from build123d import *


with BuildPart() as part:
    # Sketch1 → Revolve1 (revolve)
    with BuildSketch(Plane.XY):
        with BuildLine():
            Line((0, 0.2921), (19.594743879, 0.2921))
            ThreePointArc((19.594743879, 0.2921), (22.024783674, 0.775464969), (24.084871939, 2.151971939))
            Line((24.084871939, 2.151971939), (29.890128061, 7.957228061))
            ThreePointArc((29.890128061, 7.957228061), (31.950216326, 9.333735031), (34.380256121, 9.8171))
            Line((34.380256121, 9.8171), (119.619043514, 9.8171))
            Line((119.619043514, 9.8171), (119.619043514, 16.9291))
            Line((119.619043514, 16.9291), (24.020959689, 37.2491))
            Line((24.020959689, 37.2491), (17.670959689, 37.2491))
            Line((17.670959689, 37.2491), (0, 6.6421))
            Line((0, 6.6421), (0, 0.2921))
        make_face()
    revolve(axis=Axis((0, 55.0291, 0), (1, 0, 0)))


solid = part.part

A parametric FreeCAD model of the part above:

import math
import FreeCAD as App
import Part
import Sketcher
Q = App.Units.Quantity

doc = App.newDocument("Part")
body = doc.addObject("PartDesign::Body", "Body")

sketch1 = body.newObject("Sketcher::SketchObject", "Sketch")
sketch1.AttachmentSupport = (doc.getObject("XY_Plane"), [""])
sketch1.MapMode = "FlatFace"
sketch1.addGeometry([
    Part.LineSegment(App.Vector(0, 0.3, 0), App.Vector(19.6, 0.3, 0)),
    Part.ArcOfCircle(Part.Circle(App.Vector(19.6, 6.6, 0), App.Vector(0, 0, 1), 6.4), math.radians(-90), math.radians(-45)),
    Part.LineSegment(App.Vector(24.1, 2.2, 0), App.Vector(29.9, 8, 0)),
    Part.ArcOfCircle(Part.Circle(App.Vector(34.4, 3.5, 0), App.Vector(0, 0, 1), 6.4), math.radians(90), math.radians(135)),
    Part.LineSegment(App.Vector(34.4, 9.8, 0), App.Vector(119.6, 9.8, 0)),
    Part.LineSegment(App.Vector(119.6, 9.8, 0), App.Vector(119.6, 16.9, 0)),
    Part.LineSegment(App.Vector(119.6, 16.9, 0), App.Vector(24, 37.2, 0)),
    Part.LineSegment(App.Vector(24, 37.2, 0), App.Vector(17.7, 37.2, 0)),
    Part.LineSegment(App.Vector(17.7, 37.2, 0), App.Vector(0, 6.6, 0)),
    Part.LineSegment(App.Vector(0, 6.6, 0), App.Vector(0, 0.3, 0)),
], False)
sketch1.addGeometry(Part.LineSegment(App.Vector(0, 55, 0), App.Vector(119.6, 55, 0)), True)
sketch1.addConstraint([
    Sketcher.Constraint("Tangent", 0, 2, 1, 1),
    Sketcher.Constraint("Tangent", 1, 2, 2, 1),
    Sketcher.Constraint("Tangent", 2, 2, 3, 2),
    Sketcher.Constraint("Tangent", 3, 1, 4, 1),
    Sketcher.Constraint("Coincident", 4, 2, 5, 1),
    Sketcher.Constraint("Coincident", 5, 2, 6, 1),
    Sketcher.Constraint("Coincident", 6, 2, 7, 1),
    Sketcher.Constraint("Coincident", 7, 2, 8, 1),
    Sketcher.Constraint("Coincident", 8, 2, 9, 1),
    Sketcher.Constraint("Coincident", 9, 2, 0, 1),
    Sketcher.Constraint("Horizontal", 0),
    Sketcher.Constraint("Horizontal", 4),
    Sketcher.Constraint("Vertical", 5),
    Sketcher.Constraint("Horizontal", 7),
    Sketcher.Constraint("Vertical", 9),
    Sketcher.Constraint("Horizontal", 10),
    Sketcher.Constraint("Equal", 1, 3),
    Sketcher.Constraint("PointOnObject", 8, 2, -2),
    Sketcher.Constraint("PointOnObject", 10, 1, -2),
    Sketcher.Constraint("Horizontal", 1, 3, 8, 2),
    Sketcher.Constraint("Vertical", 5, 2, 10, 2),
    Sketcher.Constraint("Equal", 7, 9),
    Sketcher.Constraint("Radius", 1, Q("0.25 in")),
    Sketcher.Constraint("Angle", 2, Q("45 deg")),
    Sketcher.Constraint("Angle", 6, Q("168 deg")),
    Sketcher.Constraint("Angle", 8, Q("-120 deg")),
    Sketcher.Constraint("DistanceY", 5, 1, 5, 2, Q("0.28 in")),
    Sketcher.Constraint("DistanceY", 7, 2, 10, 1, Q("0.7 in")),
    Sketcher.Constraint("DistanceY", 5, 2, 10, 2, Q("1.5 in")),
    Sketcher.Constraint("DistanceY", 3, 3, 1, 3, Q("0.125 in")),
    Sketcher.Constraint("DistanceY", -1, 1, 1, 3, Q("0.2615 in")),
    Sketcher.Constraint("DistanceX", 1, 3, 4, 2, Q("100.0243 mm")),
])
revolution = body.newObject("PartDesign::Revolution", "Revolution")
revolution.Profile = sketch1
revolution.ReferenceAxis = (sketch1, ["Axis0"])
revolution.Angle = 360

doc.recompute()
